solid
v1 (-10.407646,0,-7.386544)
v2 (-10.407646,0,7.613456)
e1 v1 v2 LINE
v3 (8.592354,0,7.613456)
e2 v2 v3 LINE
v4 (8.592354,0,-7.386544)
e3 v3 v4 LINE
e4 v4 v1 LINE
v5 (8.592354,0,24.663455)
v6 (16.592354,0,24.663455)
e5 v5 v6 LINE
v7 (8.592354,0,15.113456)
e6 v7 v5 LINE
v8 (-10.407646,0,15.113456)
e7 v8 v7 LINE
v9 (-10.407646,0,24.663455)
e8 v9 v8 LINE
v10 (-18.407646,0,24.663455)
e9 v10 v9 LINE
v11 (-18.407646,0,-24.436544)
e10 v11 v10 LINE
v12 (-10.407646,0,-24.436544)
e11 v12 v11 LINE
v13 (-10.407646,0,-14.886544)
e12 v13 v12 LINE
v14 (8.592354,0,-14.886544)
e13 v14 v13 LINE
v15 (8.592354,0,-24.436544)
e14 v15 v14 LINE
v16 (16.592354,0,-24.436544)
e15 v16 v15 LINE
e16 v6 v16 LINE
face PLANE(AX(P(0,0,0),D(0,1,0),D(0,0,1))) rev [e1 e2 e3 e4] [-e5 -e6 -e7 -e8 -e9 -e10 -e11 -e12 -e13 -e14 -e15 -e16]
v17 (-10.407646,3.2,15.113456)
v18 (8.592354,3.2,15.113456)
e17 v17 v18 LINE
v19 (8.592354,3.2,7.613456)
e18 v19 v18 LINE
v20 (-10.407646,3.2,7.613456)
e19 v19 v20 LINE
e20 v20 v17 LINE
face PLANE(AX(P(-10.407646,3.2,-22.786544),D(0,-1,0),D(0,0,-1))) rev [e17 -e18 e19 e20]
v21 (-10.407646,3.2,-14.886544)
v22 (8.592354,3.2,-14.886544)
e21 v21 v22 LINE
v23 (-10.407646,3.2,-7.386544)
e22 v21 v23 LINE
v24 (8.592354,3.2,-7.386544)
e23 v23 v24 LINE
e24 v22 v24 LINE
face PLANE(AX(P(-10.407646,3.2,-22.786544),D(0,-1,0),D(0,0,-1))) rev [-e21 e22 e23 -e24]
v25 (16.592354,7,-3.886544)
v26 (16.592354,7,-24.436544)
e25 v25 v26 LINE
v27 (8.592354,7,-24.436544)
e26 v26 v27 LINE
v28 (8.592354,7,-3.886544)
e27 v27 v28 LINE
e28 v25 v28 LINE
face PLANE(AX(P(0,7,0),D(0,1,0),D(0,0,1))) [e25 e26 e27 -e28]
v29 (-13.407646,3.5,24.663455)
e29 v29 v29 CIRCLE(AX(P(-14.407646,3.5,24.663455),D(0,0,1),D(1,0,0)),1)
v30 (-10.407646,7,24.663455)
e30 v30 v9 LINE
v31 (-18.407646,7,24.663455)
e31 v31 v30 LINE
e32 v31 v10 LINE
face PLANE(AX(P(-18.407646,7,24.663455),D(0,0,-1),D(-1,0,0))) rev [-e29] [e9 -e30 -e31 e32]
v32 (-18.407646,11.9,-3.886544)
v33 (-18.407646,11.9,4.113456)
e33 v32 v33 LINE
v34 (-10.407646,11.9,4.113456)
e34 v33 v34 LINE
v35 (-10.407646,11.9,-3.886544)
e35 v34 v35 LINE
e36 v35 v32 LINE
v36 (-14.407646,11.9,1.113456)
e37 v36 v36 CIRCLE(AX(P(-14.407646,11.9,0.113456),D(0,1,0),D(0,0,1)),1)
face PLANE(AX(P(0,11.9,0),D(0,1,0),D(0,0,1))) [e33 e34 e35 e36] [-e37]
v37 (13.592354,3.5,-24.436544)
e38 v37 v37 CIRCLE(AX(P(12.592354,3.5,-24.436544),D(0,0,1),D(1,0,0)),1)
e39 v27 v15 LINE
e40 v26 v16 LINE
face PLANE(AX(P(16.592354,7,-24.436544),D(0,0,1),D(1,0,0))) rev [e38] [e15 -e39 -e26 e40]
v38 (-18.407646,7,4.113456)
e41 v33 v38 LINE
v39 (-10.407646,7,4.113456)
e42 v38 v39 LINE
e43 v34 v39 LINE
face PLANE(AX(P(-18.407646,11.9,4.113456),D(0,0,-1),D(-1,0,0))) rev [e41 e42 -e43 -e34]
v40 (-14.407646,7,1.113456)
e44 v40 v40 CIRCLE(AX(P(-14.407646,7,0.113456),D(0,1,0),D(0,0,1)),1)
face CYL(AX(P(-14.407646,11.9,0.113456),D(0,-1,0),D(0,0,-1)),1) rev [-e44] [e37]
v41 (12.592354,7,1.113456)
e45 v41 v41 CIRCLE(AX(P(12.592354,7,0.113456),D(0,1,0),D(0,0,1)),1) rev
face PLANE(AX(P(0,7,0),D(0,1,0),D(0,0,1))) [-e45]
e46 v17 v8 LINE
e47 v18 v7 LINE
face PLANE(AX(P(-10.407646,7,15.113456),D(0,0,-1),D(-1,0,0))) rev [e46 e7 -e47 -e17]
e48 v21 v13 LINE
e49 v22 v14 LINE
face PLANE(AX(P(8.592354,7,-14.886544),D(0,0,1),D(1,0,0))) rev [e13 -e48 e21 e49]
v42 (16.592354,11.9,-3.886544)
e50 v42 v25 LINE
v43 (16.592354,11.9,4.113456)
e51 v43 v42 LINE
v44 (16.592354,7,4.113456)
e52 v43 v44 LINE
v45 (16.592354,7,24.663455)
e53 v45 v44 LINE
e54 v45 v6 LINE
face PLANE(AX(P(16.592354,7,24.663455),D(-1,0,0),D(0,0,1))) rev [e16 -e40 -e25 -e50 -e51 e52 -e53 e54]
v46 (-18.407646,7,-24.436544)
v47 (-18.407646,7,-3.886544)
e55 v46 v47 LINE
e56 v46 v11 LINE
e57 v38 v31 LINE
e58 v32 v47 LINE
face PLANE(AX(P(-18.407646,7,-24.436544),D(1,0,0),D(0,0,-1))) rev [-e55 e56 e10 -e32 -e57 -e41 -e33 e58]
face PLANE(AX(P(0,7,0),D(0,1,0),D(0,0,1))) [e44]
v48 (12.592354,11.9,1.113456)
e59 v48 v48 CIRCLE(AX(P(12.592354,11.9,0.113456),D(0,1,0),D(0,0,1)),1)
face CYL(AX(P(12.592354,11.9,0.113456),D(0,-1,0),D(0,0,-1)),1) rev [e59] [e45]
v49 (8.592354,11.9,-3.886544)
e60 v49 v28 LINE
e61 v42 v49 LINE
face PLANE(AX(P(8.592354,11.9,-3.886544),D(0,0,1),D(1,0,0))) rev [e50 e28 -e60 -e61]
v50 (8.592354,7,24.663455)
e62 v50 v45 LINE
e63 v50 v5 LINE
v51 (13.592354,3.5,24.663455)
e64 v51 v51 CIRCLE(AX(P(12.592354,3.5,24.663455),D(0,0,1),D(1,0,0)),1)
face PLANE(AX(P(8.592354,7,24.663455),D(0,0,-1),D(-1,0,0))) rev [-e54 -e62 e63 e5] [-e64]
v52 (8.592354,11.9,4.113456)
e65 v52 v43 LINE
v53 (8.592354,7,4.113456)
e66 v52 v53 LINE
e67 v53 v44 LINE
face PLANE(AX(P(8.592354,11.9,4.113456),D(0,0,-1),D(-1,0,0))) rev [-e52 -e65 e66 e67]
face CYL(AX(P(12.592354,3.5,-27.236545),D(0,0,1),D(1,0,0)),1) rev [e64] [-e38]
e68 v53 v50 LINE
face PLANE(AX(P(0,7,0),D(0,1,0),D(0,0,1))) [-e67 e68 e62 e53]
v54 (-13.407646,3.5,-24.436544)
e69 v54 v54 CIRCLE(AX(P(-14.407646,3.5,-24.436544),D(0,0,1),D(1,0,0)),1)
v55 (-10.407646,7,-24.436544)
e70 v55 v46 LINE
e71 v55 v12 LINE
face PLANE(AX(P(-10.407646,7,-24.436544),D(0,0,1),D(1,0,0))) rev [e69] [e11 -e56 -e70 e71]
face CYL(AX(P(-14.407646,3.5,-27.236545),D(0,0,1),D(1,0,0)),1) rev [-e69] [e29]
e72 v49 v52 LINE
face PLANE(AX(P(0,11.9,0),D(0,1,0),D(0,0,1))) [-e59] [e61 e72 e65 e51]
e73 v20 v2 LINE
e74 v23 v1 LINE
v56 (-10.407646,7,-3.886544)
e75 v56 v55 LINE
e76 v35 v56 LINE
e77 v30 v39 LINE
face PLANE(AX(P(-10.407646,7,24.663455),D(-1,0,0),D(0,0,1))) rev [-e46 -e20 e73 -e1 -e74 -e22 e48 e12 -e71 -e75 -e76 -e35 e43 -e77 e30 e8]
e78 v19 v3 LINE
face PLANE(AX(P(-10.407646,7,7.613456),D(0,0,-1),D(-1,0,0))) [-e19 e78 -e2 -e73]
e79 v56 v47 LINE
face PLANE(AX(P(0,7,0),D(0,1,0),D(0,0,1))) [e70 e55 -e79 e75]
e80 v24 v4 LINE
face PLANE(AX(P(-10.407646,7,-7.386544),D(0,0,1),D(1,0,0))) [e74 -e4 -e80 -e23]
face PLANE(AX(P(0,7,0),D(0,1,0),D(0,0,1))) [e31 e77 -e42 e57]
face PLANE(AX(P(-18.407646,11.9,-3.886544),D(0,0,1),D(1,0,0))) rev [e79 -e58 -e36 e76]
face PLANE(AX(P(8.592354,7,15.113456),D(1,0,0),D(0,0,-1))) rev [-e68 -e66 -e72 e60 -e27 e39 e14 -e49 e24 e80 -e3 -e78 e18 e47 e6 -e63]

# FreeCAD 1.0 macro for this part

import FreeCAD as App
import Part
import Sketcher
from FreeCAD import Vector

doc = App.newDocument("Part")
body = doc.addObject("PartDesign::Body", "Body")

sketch1 = body.newObject("Sketcher::SketchObject", "Sketch")
sketch1.AttachmentSupport = (doc.getObject("XZ_Plane"), [""])
sketch1.MapMode = "FlatFace"
sketch1.addGeometry([
    Part.LineSegment(Vector(16.592354, 24.663455, 0), Vector(16.592354, -24.436544, 0)),
    Part.LineSegment(Vector(16.592354, -24.436544, 0), Vector(8.592354, -24.436544, 0)),
    Part.LineSegment(Vector(8.592354, -24.436544, 0), Vector(8.592354, -14.886544, 0)),
    Part.LineSegment(Vector(8.592354, -14.886544, 0), Vector(-10.407646, -14.886544, 0)),
    Part.LineSegment(Vector(-10.407646, -14.886544, 0), Vector(-10.407646, -24.436544, 0)),
    Part.LineSegment(Vector(-10.407646, -24.436544, 0), Vector(-18.407646, -24.436544, 0)),
    Part.LineSegment(Vector(-18.407646, -24.436544, 0), Vector(-18.407646, 24.663455, 0)),
    Part.LineSegment(Vector(-18.407646, 24.663455, 0), Vector(-10.407646, 24.663455, 0)),
    Part.LineSegment(Vector(-10.407646, 24.663455, 0), Vector(-10.407646, 15.113456, 0)),
    Part.LineSegment(Vector(-10.407646, 15.113456, 0), Vector(8.592354, 15.113456, 0)),
    Part.LineSegment(Vector(8.592354, 15.113456, 0), Vector(8.592354, 24.663455, 0)),
    Part.LineSegment(Vector(8.592354, 24.663455, 0), Vector(16.592354, 24.663455, 0)),
    Part.LineSegment(Vector(8.592354, 7.613456, 0), Vector(-10.407646, 7.613456, 0)),
    Part.LineSegment(Vector(-10.407646, 7.613456, 0), Vector(-10.407646, -7.386544, 0)),
    Part.LineSegment(Vector(-10.407646, -7.386544, 0), Vector(8.592354, -7.386544, 0)),
    Part.LineSegment(Vector(8.592354, -7.386544, 0), Vector(8.592354, 7.613456, 0)),
], False)
sketch1.addConstraint([
    Sketcher.Constraint("Coincident", 0, 2, 1, 1),
    Sketcher.Constraint("Coincident", 1, 2, 2, 1),
    Sketcher.Constraint("Coincident", 2, 2, 3, 1),
    Sketcher.Constraint("Coincident", 3, 2, 4, 1),
    Sketcher.Constraint("Coincident", 4, 2, 5, 1),
    Sketcher.Constraint("Coincident", 5, 2, 6, 1),
    Sketcher.Constraint("Coincident", 6, 2, 7, 1),
    Sketcher.Constraint("Coincident", 7, 2, 8, 1),
    Sketcher.Constraint("Coincident", 8, 2, 9, 1),
    Sketcher.Constraint("Coincident", 9, 2, 10, 1),
    Sketcher.Constraint("Coincident", 10, 2, 11, 1),
    Sketcher.Constraint("Coincident", 11, 2, 0, 1),
    Sketcher.Constraint("Coincident", 12, 2, 13, 1),
    Sketcher.Constraint("Coincident", 13, 2, 14, 1),
    Sketcher.Constraint("Coincident", 14, 2, 15, 1),
    Sketcher.Constraint("Coincident", 15, 2, 12, 1),
    Sketcher.Constraint("Vertical", 0),
    Sketcher.Constraint("Horizontal", 1),
    Sketcher.Constraint("Vertical", 2),
    Sketcher.Constraint("Horizontal", 3),
    Sketcher.Constraint("Vertical", 4),
    Sketcher.Constraint("Horizontal", 5),
    Sketcher.Constraint("Vertical", 6),
    Sketcher.Constraint("Horizontal", 7),
    Sketcher.Constraint("Vertical", 8),
    Sketcher.Constraint("Horizontal", 9),
    Sketcher.Constraint("Vertical", 10),
    Sketcher.Constraint("Horizontal", 11),
    Sketcher.Constraint("Horizontal", 12),
    Sketcher.Constraint("Vertical", 13),
    Sketcher.Constraint("Horizontal", 14),
    Sketcher.Constraint("Vertical", 15),
    Sketcher.Constraint("Horizontal", 1, 2, 4, 2),
    Sketcher.Constraint("Horizontal", 7, 2, 10, 2),
    Sketcher.Constraint("Vertical", 4, 2, 7, 2),
    Sketcher.Constraint("Vertical", 2, 2, 9, 2),
    Sketcher.Constraint("Vertical", 8, 2, 12, 2),
    Sketcher.Constraint("Vertical", 10, 2, 14, 2),
    Sketcher.Constraint("Equal", 1, 5),
    Sketcher.Constraint("Equal", 4, 8),
    Sketcher.Constraint("DistanceX", 1, 2, 1, 1, 8.0),
    Sketcher.Constraint("DistanceX", 3, 2, 3, 1, 19.0),
    Sketcher.Constraint("DistanceY", 13, 2, 13, 1, 15.0),
    Sketcher.Constraint("DistanceY", 0, 2, 0, 1, 49.099998),
    Sketcher.Constraint("DistanceY", 3, 2, 8, 2, 30.0),
    Sketcher.Constraint("DistanceY", 12, 2, 8, 2, 7.5),
    Sketcher.Constraint("DistanceX", -1, 1, 0, 2, 16.592354),
    Sketcher.Constraint("DistanceY", 0, 2, -1, 1, 24.436544),
])
pad1 = body.newObject("PartDesign::Pad", "Pad")
pad1.Profile = sketch1
pad1.Length = 7
pad1.Reversed = True

sketch2 = body.newObject("Sketcher::SketchObject", "Sketch001")
sketch2.AttachmentSupport = (doc.getObject("XZ_Plane"), [""])
sketch2.MapMode = "FlatFace"
sketch2.AttachmentOffset = App.Placement(Vector(0, 0, -7), App.Rotation())
sketch2.addGeometry([
    Part.LineSegment(Vector(-18.407646, -3.886544, 0), Vector(-18.407646, 4.113456, 0)),
    Part.LineSegment(Vector(-18.407646, 4.113456, 0), Vector(-10.407646, 4.113456, 0)),
    Part.LineSegment(Vector(-10.407646, 4.113456, 0), Vector(-10.407646, -3.886544, 0)),
    Part.LineSegment(Vector(-10.407646, -3.886544, 0), Vector(-18.407646, -3.886544, 0)),
    Part.Circle(Vector(-14.407646, 0.113456, 0), Vector(0, 0, 1), 1),
    Part.LineSegment(Vector(8.592354, -3.886544, 0), Vector(8.592354, 4.113456, 0)),
    Part.LineSegment(Vector(8.592354, 4.113456, 0), Vector(16.592354, 4.113456, 0)),
    Part.LineSegment(Vector(16.592354, 4.113456, 0), Vector(16.592354, -3.886544, 0)),
    Part.LineSegment(Vector(16.592354, -3.886544, 0), Vector(8.592354, -3.886544, 0)),
    Part.Circle(Vector(12.592354, 0.113456, 0), Vector(0, 0, 1), 1),
], False)
sketch2.addConstraint([
    Sketcher.Constraint("Coincident", 0, 2, 1, 1),
    Sketcher.Constraint("Coincident", 1, 2, 2, 1),
    Sketcher.Constraint("Coincident", 2, 2, 3, 1),
    Sketcher.Constraint("Coincident", 3, 2, 0, 1),
    Sketcher.Constraint("Coincident", 5, 2, 6, 1),
    Sketcher.Constraint("Coincident", 6, 2, 7, 1),
    Sketcher.Constraint("Coincident", 7, 2, 8, 1),
    Sketcher.Constraint("Coincident", 8, 2, 5, 1),
    Sketcher.Constraint("Vertical", 0),
    Sketcher.Constraint("Horizontal", 1),
    Sketcher.Constraint("Vertical", 2),
    Sketcher.Constraint("Horizontal", 3),
    Sketcher.Constraint("Vertical", 5),
    Sketcher.Constraint("Horizontal", 6),
    Sketcher.Constraint("Vertical", 7),
    Sketcher.Constraint("Horizontal", 8),
    Sketcher.Constraint("Equal", 4, 9),
    Sketcher.Constraint("Horizontal", 4, 3, 9, 3),
    Sketcher.Constraint("Horizontal", 1, 2, 5, 2),
    Sketcher.Constraint("Horizontal", 3, 2, 7, 2),
    Sketcher.Constraint("Equal", 3, 6),
    Sketcher.Constraint("Equal", 8, 0),
    Sketcher.Constraint("Diameter", 4, 2.0),
    Sketcher.Constraint("DistanceX", 1, 1, 1, 2, 8.0),
    Sketcher.Constraint("DistanceX", 4, 3, 9, 3, 27.0),
    Sketcher.Constraint("DistanceX", 0, 2, 4, 3, 4.0),
    Sketcher.Constraint("DistanceY", 4, 3, 0, 2, 4.0),
    Sketcher.Constraint("DistanceX", 5, 2, 9, 3, 4.0),
    Sketcher.Constraint("DistanceX", 4, 3, -1, 1, 14.407646),
    Sketcher.Constraint("DistanceY", -1, 1, 4, 3, 0.113456),
])
pad2 = body.newObject("PartDesign::Pad", "Pad001")
pad2.Profile = sketch2
pad2.Length = 4.9
pad2.Reversed = True

sketch3 = body.newObject("Sketcher::SketchObject", "Sketch002")
sketch3.AttachmentSupport = (doc.getObject("XY_Plane"), [""])
sketch3.MapMode = "FlatFace"
sketch3.AttachmentOffset = App.Placement(Vector(0, 0, 15.113456), App.Rotation())
sketch3.addGeometry([
    Part.LineSegment(Vector(-10.407646, 7, 0), Vector(-10.407646, 3.2, 0)),
    Part.LineSegment(Vector(-10.407646, 3.2, 0), Vector(8.592354, 3.2, 0)),
    Part.LineSegment(Vector(8.592354, 3.2, 0), Vector(8.592354, 7, 0)),
    Part.LineSegment(Vector(8.592354, 7, 0), Vector(-10.407646, 7, 0)),
], False)
sketch3.addConstraint([
    Sketcher.Constraint("Coincident", 0, 2, 1, 1),
    Sketcher.Constraint("Coincident", 1, 2, 2, 1),
    Sketcher.Constraint("Coincident", 2, 2, 3, 1),
    Sketcher.Constraint("Coincident", 3, 2, 0, 1),
    Sketcher.Constraint("Vertical", 0),
    Sketcher.Constraint("Horizontal", 1),
    Sketcher.Constraint("Vertical", 2),
    Sketcher.Constraint("Horizontal", 3),
    Sketcher.Constraint("DistanceX", 1, 1, 1, 2, 19.0),
    Sketcher.Constraint("DistanceY", 0, 2, 0, 1, 3.8),
    Sketcher.Constraint("DistanceY", -1, 1, 2, 2, 7.0),
    Sketcher.Constraint("DistanceX", 0, 2, -1, 1, 10.407646),
])
pocket1 = body.newObject("PartDesign::Pocket", "Pocket")
pocket1.Profile = sketch3
pocket1.Length = 37.9

sketch4 = body.newObject("Sketcher::SketchObject", "Sketch003")
sketch4.AttachmentSupport = (doc.getObject("XY_Plane"), [""])
sketch4.MapMode = "FlatFace"
sketch4.AttachmentOffset = App.Placement(Vector(0, 0, 24.663455), App.Rotation())
sketch4.addGeometry([
    Part.Circle(Vector(12.592354, 3.5, 0), Vector(0, 0, 1), 1),
    Part.Circle(Vector(-14.407646, 3.5, 0), Vector(0, 0, 1), 1),
], False)
sketch4.addConstraint([
    Sketcher.Constraint("Equal", 0, 1),
    Sketcher.Constraint("Horizontal", 0, 3, 1, 3),
    Sketcher.Constraint("Diameter", 0, 2.0),
    Sketcher.Constraint("DistanceX", 1, 3, 0, 3, 27.0),
    Sketcher.Constraint("DistanceY", -1, 1, 0, 3, 3.5),
    Sketcher.Constraint("DistanceX", -1, 1, 0, 3, 12.592354),
])
pocket2 = body.newObject("PartDesign::Pocket", "Pocket001")
pocket2.Profile = sketch4
pocket2.Length = 51.9

doc.recompute()
